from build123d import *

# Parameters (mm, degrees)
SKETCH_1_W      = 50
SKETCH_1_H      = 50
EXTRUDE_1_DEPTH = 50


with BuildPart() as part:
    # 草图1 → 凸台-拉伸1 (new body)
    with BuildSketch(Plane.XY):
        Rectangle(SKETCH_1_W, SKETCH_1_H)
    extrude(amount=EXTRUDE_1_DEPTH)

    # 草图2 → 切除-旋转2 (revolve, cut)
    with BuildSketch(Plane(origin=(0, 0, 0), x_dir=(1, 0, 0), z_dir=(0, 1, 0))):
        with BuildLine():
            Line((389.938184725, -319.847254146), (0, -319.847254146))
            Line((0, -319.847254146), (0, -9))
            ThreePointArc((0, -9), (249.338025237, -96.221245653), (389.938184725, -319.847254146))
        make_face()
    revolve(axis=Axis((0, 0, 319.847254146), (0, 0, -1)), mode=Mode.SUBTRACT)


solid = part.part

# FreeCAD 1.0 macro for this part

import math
import FreeCAD as App
import Part
import Sketcher
Q = App.Units.Quantity

doc = App.newDocument("Part")
body = doc.addObject("PartDesign::Body", "Body")

sketch1 = doc.addObject("Sketcher::SketchObject", "Sketch")
body.addObject(sketch1)
sketch1.AttachmentSupport = (doc.XY_Plane, [""])
sketch1.MapMode = "FlatFace"
sketch1.addGeometry(Part.LineSegment(App.Vector(-25, 25, 0), App.Vector(-25, -25, 0)), False)
sketch1.addGeometry(Part.LineSegment(App.Vector(-25, -25, 0), App.Vector(25, -25, 0)), False)
sketch1.addGeometry(Part.LineSegment(App.Vector(25, -25, 0), App.Vector(25, 25, 0)), False)
sketch1.addGeometry(Part.LineSegment(App.Vector(25, 25, 0), App.Vector(-25, 25, 0)), False)
sketch1.addConstraint(Sketcher.Constraint("Coincident", 0, 2, 1, 1))
sketch1.addConstraint(Sketcher.Constraint("Coincident", 1, 2, 2, 1))
sketch1.addConstraint(Sketcher.Constraint("Coincident", 2, 2, 3, 1))
sketch1.addConstraint(Sketcher.Constraint("Coincident", 3, 2, 0, 1))
sketch1.addConstraint(Sketcher.Constraint("Vertical", 0))
sketch1.addConstraint(Sketcher.Constraint("Horizontal", 1))
sketch1.addConstraint(Sketcher.Constraint("Vertical", 2))
sketch1.addConstraint(Sketcher.Constraint("Horizontal", 3))
sketch1.addConstraint(Sketcher.Constraint("Symmetric", 0, 2, 2, 2, -1, 1))
sketch1.addConstraint(Sketcher.Constraint("Equal", 3, 0))
sketch1.addConstraint(Sketcher.Constraint("DistanceX", 1, 1, 1, 2, Q("50 mm")))
pad1 = doc.addObject("PartDesign::Pad", "Pad")
body.addObject(pad1)
pad1.Profile = sketch1
pad1.Length = 50

sketch2 = doc.addObject("Sketcher::SketchObject", "Sketch001")
body.addObject(sketch2)
sketch2.AttachmentSupport = (doc.XZ_Plane, [""])
sketch2.MapMode = "FlatFace"
sketch2.addGeometry(Part.LineSegment(App.Vector(0, 320, 0), App.Vector(390, 320, 0)), False)
sketch2.addGeometry(Part.ArcOfCircle(Part.Circle(App.Vector(0, 409, 0), App.Vector(0, 0, 1), 400), math.radians(-90), math.radians(-13)), False)
sketch2.addGeometry(Part.LineSegment(App.Vector(0, 9, 0), App.Vector(0, 320, 0)), False)
sketch2.addConstraint(Sketcher.Constraint("Coincident", 0, 2, 1, 2))
sketch2.addConstraint(Sketcher.Constraint("Coincident", 1, 1, 2, 1))
sketch2.addConstraint(Sketcher.Constraint("Coincident", 2, 2, 0, 1))
sketch2.addConstraint(Sketcher.Constraint("Horizontal", 0))
sketch2.addConstraint(Sketcher.Constraint("Vertical", 2))
sketch2.addConstraint(Sketcher.Constraint("PointOnObject", 1, 3, -2))
sketch2.addConstraint(Sketcher.Constraint("PointOnObject", 2, 2, -2))
sketch2.addConstraint(Sketcher.Constraint("Radius", 1, Q("400 mm")))
sketch2.addConstraint(Sketcher.Constraint("DistanceY", -1, 1, 1, 3, Q("409 mm")))
sketch2.addConstraint(Sketcher.Constraint("DistanceX", 0, 1, 0, 2, Q("389.938185 mm")))
groove = doc.addObject("PartDesign::Groove", "Groove")
body.addObject(groove)
groove.Profile = sketch2
groove.ReferenceAxis = (sketch2, ["V_Axis"])
groove.Angle = 360

doc.recompute()
